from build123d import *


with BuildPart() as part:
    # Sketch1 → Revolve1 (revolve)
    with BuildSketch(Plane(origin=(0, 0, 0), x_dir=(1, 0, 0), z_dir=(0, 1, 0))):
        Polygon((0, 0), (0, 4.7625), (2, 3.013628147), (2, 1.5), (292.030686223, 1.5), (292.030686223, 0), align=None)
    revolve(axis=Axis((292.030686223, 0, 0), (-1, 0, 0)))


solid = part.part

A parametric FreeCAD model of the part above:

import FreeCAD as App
import Part
import Sketcher
from FreeCAD import Vector


def add_polygon(sketch, points):
    """Adds a closed chain of lines whose ends are joined by coincident constraints."""
    first, n = sketch.GeometryCount, len(points)
    for a, b in zip(points, points[1:] + points[:1]):
        sketch.addGeometry(Part.LineSegment(App.Vector(*a, 0), App.Vector(*b, 0)), False)
    for i in range(n):
        sketch.addConstraint(Sketcher.Constraint("Coincident", first + i, 2, first + (i + 1) % n, 1))

doc = App.newDocument("Part")
params = doc.addObject("Spreadsheet::Sheet", "Params")
for row, (alias, value) in enumerate([
    ("sketch1_height", "1.5 mm"),
    ("revolution_angle", "360 deg"),
], start=1):
    params.set(f"A{row}", alias)
    params.set(f"B{row}", "=" + value)
    params.setAlias(f"B{row}", alias)

body = doc.addObject("PartDesign::Body", "Body")

# Sketch on XZ plane
sketch1 = body.newObject("Sketcher::SketchObject", "Sketch")
sketch1.AttachmentSupport = (doc.getObject("XZ_Plane"), [""])
sketch1.MapMode = "FlatFace"
add_polygon(sketch1, [(0, -4.8), (0, 0), (292, 0), (292, -1.5), (2, -1.5), (2, -3)])  # lines 0-5
sketch1.addConstraint(Sketcher.Constraint("Vertical", 0))
sketch1.addConstraint(Sketcher.Constraint("Horizontal", 1))
sketch1.addConstraint(Sketcher.Constraint("Vertical", 2))
sketch1.addConstraint(Sketcher.Constraint("Horizontal", 3))
sketch1.addConstraint(Sketcher.Constraint("Vertical", 4))
sketch1.addConstraint(Sketcher.Constraint("Coincident", 0, 2, -1, 1))
sketch1.addConstraint(Sketcher.Constraint("DistanceY", 2, 2, 2, 1, 1.5))
sketch1.addConstraint(Sketcher.Constraint("DistanceX", -1, 1, 3, 2, 2.0))
sketch1.addConstraint(Sketcher.Constraint("DistanceY", 0, 1, 0, 2, 4.7625))
sketch1.addConstraint(Sketcher.Constraint("DistanceY", 4, 2, 4, 1, 1.513628))
sketch1.addConstraint(Sketcher.Constraint("DistanceX", 1, 1, 1, 2, 292.030686))
sketch1.setExpression("Constraints[12]", "Params.sketch1_height")
revolution = body.newObject("PartDesign::Revolution", "Revolution")
revolution.Profile = sketch1
revolution.ReferenceAxis = (sketch1, ["H_Axis"])
revolution.setExpression("Angle", "Params.revolution_angle")

doc.recompute()
